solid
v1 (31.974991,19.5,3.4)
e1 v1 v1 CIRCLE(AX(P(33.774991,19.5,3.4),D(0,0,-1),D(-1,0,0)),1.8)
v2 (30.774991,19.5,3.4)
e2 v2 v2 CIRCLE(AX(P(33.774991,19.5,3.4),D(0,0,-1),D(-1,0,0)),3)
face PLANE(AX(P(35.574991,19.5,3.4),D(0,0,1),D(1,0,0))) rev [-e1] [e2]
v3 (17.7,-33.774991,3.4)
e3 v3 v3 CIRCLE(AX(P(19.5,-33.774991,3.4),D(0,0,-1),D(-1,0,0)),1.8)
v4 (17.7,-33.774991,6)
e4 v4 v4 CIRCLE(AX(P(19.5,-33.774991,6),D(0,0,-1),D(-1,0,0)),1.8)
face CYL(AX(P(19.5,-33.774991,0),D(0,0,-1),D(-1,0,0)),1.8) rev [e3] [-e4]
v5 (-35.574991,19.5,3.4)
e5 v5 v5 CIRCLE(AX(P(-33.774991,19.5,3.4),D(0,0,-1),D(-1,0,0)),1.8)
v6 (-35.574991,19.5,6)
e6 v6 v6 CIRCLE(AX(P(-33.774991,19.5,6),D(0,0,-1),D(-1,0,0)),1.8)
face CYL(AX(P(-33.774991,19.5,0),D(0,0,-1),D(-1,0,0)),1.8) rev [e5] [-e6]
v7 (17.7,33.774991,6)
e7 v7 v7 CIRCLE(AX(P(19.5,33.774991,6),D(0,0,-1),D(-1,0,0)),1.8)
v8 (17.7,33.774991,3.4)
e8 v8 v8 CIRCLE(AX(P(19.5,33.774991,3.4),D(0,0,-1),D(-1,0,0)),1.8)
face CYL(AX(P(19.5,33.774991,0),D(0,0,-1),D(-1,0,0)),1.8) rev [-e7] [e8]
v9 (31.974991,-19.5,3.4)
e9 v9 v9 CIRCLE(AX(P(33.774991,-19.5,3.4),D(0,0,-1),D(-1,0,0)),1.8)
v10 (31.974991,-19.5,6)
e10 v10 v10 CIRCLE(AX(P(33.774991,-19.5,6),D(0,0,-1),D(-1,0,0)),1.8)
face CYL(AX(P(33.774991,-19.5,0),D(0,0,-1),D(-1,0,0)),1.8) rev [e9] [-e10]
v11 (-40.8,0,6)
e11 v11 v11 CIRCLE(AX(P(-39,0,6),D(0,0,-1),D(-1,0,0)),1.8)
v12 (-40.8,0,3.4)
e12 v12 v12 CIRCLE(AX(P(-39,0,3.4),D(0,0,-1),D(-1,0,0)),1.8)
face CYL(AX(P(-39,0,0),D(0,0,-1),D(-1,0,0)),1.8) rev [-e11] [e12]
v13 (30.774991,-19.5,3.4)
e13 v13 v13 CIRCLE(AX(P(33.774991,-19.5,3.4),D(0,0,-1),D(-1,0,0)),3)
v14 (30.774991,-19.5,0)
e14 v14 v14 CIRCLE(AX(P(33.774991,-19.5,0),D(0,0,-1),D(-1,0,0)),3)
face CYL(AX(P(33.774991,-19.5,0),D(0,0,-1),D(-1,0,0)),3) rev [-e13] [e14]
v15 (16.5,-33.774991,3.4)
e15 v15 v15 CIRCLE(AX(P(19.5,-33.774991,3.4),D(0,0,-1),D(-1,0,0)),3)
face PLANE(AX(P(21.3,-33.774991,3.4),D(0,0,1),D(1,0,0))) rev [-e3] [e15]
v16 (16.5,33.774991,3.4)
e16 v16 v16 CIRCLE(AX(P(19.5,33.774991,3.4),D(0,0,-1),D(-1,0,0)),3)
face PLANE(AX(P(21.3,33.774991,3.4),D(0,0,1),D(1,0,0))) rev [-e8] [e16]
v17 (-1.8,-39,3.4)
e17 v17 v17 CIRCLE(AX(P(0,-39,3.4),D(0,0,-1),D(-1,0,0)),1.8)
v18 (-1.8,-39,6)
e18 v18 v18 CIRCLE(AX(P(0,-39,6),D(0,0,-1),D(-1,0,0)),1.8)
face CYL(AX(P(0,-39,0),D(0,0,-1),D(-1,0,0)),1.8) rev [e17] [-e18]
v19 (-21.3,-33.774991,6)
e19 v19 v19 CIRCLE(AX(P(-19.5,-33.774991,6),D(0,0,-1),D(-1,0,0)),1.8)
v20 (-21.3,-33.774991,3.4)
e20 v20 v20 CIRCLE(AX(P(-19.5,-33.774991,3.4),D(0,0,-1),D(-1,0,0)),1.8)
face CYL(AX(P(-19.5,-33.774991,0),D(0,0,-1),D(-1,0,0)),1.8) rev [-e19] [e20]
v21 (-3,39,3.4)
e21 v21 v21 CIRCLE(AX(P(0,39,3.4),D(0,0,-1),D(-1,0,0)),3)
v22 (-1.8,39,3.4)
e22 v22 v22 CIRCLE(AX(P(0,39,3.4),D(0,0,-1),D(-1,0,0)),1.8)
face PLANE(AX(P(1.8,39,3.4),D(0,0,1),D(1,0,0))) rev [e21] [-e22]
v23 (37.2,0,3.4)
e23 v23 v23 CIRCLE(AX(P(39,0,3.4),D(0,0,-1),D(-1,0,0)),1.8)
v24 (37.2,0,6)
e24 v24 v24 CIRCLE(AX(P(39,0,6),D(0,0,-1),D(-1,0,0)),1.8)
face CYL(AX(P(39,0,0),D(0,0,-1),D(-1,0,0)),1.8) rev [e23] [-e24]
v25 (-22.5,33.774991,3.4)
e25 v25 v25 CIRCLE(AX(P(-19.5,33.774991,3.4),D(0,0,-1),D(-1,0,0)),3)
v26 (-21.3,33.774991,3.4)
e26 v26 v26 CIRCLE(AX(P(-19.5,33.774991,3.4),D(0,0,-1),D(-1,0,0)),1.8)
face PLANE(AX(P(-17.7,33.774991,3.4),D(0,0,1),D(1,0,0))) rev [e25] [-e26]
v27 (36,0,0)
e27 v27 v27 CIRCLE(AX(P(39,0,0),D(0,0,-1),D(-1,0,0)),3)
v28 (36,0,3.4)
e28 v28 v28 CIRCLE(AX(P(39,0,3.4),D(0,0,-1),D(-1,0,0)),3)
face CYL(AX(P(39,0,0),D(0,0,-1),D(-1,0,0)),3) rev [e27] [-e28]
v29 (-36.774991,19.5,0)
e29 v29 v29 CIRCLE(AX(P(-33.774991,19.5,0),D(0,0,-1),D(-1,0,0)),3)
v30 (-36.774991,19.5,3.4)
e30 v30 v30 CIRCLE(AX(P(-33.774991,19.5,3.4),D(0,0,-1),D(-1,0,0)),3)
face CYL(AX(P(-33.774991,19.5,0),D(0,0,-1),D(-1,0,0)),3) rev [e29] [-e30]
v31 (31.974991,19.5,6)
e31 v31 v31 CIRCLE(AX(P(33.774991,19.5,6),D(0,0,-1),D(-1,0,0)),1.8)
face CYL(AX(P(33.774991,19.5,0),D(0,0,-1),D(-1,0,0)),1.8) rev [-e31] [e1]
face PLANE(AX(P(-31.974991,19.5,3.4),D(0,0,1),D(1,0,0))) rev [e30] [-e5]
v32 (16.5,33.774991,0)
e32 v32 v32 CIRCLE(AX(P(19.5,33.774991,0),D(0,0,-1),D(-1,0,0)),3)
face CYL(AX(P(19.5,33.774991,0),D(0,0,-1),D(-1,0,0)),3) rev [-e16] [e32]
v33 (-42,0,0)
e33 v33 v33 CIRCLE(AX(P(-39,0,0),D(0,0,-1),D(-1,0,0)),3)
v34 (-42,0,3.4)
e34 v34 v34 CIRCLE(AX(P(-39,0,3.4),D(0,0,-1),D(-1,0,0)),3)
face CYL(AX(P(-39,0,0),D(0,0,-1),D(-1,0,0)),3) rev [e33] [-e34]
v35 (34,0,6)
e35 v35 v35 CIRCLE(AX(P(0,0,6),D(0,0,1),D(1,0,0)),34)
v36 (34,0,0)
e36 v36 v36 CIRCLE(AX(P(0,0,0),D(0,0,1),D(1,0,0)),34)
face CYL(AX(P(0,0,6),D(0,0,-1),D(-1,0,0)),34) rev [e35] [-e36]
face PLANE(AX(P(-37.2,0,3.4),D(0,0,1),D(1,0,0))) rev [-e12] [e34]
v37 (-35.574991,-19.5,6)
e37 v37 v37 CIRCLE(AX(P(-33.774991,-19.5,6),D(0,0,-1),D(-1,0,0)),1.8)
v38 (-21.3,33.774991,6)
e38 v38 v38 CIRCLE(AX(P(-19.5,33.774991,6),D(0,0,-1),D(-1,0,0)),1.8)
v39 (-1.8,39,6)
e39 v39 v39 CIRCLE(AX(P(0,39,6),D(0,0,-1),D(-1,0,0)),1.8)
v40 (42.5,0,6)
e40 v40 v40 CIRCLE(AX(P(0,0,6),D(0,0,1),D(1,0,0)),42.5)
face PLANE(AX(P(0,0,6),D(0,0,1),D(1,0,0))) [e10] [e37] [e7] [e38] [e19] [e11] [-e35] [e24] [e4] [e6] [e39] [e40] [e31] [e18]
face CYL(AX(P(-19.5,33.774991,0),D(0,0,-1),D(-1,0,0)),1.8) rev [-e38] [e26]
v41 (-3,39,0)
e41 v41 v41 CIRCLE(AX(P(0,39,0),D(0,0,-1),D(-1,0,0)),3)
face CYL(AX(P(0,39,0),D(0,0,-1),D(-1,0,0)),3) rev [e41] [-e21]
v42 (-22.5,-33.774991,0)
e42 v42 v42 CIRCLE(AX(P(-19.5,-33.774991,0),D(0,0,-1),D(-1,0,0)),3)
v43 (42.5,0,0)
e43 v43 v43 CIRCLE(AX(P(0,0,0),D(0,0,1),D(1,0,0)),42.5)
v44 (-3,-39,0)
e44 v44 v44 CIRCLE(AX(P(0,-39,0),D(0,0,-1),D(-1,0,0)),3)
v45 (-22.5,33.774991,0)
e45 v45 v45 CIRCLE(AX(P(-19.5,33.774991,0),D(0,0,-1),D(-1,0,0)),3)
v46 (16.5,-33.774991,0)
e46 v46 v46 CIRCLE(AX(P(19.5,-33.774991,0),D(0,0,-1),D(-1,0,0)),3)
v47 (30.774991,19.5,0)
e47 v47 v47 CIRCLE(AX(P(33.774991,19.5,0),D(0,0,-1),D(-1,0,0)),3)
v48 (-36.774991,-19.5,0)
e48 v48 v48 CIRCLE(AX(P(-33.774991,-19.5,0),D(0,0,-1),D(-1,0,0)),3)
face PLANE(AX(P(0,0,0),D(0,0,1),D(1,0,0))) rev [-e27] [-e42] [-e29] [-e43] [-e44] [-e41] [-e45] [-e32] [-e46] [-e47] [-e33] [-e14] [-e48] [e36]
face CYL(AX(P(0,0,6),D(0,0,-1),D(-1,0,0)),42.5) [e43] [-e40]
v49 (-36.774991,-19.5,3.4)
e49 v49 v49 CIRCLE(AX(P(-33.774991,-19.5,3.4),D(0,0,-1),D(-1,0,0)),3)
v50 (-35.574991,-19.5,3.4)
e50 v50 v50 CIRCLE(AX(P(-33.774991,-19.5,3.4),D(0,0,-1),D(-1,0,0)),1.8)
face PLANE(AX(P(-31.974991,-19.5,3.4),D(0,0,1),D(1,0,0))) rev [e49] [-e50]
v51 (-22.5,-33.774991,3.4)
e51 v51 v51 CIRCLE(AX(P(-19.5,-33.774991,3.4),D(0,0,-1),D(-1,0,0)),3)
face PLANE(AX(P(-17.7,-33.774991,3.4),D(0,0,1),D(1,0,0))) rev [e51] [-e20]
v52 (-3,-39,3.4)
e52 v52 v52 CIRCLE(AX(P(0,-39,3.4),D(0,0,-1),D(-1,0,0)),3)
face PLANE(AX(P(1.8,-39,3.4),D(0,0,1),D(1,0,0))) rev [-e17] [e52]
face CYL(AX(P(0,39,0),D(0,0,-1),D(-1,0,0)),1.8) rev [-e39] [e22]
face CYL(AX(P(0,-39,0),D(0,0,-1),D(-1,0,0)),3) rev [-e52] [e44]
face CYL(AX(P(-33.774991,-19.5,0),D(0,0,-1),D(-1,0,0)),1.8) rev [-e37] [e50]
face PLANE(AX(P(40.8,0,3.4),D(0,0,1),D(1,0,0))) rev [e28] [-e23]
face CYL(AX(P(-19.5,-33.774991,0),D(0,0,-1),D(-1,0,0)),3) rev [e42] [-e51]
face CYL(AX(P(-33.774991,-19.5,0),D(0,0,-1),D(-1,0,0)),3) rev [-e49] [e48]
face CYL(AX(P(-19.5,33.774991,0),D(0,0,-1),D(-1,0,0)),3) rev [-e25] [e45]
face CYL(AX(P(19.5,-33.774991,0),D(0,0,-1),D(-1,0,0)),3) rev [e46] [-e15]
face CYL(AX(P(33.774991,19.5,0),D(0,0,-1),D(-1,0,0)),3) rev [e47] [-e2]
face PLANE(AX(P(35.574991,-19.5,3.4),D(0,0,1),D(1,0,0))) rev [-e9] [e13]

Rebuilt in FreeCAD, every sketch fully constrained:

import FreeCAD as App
import Part
import Sketcher

V = App.Vector
Q = App.Units.Quantity

doc = App.newDocument("Part")
body = doc.addObject("PartDesign::Body", "Body")

sketch1 = doc.addObject("Sketcher::SketchObject", "Sketch")
body.addObject(sketch1)
sketch1.AttachmentSupport = (doc.XY_Plane, [""])
sketch1.MapMode = "FlatFace"
sketch1.addGeometry([
    Part.Circle(V(0, 0, 0), V(0, 0, 1), 42),
    Part.Circle(V(0, 0, 0), V(0, 0, 1), 34),
], False)
sketch1.addConstraint([
    Sketcher.Constraint("Coincident", 0, 3, -1, 1),
    Sketcher.Constraint("Coincident", 1, 3, -1, 1),
    Sketcher.Constraint("Diameter", 0, Q("85 mm")),
    Sketcher.Constraint("Diameter", 1, Q("68 mm")),
])
pad1 = doc.addObject("PartDesign::Pad", "Pad")
body.addObject(pad1)
pad1.Profile = sketch1
pad1.Length = 6

sketch2 = doc.addObject("Sketcher::SketchObject", "Sketch001")
body.addObject(sketch2)
sketch2.AttachmentSupport = (doc.XY_Plane, [""])
sketch2.MapMode = "FlatFace"
sketch2.addGeometry(Part.Circle(V(0, 39, 0), V(0, 0, 1), 1.8), False)
sketch2.addConstraint([
    Sketcher.Constraint("PointOnObject", 0, 3, -2),
    Sketcher.Constraint("Diameter", 0, Q("3.6 mm")),
    Sketcher.Constraint("DistanceY", -1, 1, 0, 3, Q("39 mm")),
])
doc.recompute()
hole = doc.addObject("PartDesign::Hole", "Hole")
body.addObject(hole)
hole.Profile = sketch2
hole.ThreadType = "None"
hole.Diameter = 3.6
hole.DepthType = "ThroughAll"
hole.HoleCutType = "Counterbore"
hole.HoleCutDiameter = 6
hole.HoleCutDepth = 3.4
hole.Reversed = True
doc.recompute()

polarpattern = doc.addObject("PartDesign::PolarPattern", "PolarPattern")
body.addObject(polarpattern)
polarpattern.Originals = [hole]
polarpattern.Axis = (doc.Z_Axis, [""])
polarpattern.Angle = 360
polarpattern.Occurrences = 12
body.Tip = polarpattern

doc.recompute()
